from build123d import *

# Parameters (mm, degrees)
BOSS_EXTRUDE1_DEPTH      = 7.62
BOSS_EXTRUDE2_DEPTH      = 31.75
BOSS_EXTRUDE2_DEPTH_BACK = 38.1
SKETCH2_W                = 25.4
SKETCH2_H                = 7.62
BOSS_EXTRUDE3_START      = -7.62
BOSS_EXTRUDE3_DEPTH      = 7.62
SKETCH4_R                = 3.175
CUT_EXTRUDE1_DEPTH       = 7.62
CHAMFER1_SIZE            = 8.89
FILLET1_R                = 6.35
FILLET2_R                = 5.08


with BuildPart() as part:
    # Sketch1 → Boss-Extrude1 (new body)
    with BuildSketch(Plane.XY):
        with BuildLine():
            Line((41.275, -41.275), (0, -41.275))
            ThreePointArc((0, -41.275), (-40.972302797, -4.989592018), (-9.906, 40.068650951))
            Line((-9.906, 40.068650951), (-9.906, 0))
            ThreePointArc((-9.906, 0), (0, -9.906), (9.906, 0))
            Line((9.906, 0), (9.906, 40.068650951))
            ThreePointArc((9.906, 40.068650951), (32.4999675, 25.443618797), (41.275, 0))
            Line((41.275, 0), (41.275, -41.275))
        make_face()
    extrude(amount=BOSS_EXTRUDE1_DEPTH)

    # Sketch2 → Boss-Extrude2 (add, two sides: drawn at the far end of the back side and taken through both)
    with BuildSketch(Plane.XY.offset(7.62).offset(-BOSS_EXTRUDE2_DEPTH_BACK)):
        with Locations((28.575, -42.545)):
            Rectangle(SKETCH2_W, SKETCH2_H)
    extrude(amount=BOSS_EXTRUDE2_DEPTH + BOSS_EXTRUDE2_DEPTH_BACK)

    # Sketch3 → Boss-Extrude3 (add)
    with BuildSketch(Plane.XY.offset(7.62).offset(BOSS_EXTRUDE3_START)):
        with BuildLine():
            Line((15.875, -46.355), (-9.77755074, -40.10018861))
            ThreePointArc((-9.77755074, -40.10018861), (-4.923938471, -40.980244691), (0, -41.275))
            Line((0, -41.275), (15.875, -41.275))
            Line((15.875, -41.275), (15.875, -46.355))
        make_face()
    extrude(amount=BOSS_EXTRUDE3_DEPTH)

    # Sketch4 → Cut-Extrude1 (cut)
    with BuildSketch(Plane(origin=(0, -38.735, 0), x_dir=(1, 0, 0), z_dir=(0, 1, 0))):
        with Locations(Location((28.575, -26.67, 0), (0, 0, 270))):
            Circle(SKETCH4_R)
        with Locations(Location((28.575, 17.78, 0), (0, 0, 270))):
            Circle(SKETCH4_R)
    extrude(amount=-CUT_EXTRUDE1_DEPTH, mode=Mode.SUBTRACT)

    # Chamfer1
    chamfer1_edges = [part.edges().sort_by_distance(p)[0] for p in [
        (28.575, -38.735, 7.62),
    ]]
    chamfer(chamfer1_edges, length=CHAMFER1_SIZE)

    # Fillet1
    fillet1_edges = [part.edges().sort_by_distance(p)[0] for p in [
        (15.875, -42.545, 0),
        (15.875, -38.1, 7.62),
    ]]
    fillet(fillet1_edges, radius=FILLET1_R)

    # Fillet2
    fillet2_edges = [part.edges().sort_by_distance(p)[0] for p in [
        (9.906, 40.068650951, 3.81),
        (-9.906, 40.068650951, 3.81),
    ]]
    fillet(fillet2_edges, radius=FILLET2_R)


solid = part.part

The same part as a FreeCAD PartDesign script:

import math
import FreeCAD as App
import Part
import Sketcher
from FreeCAD import Vector
Q = App.Units.Quantity


def edges_at(feature, points):
    """Names of the edges that pass closest to the given points."""
    edges = feature.Shape.Edges
    near = lambda p: min(range(len(edges)), key=lambda i: edges[i].distToShape(Part.Vertex(*p))[0])
    return sorted({f"Edge{near(p) + 1}" for p in points})

doc = App.newDocument("Part")
params = doc.addObject("Spreadsheet::Sheet", "Params")
for row, (alias, value) in enumerate([
    ("sketch1_radius", "0.39 in"),
    ("sketch1_radius2", "1.625 in"),
    ("pad1_length", "0.3 in"),
    ("sketch2_width", "1 in"),
    ("sketch2_height", "0.3 in"),
    ("pad2_length", "1.25 in"),
    ("pad2_length2", "1.5 in"),
    ("sketch3_height", "0.2 in"),
    ("sketch3_radius", "1.625 in"),
    ("sketch3_width", "0.625 in"),
    ("pad3_length", "0.3 in"),
    ("sketch4_diameter", "0.25 in"),
    ("pocket1_length", "0.3 in"),
    ("chamfer_size", "0.35 in"),
    ("fillet_radius", "0.25 in"),
    ("fillet2_radius", "0.2 in"),
], start=1):
    params.set(f"A{row}", alias)
    params.set(f"B{row}", "=" + value)
    params.setAlias(f"B{row}", alias)

body = doc.addObject("PartDesign::Body", "Body")

# Sketch on XY plane
sketch1 = body.newObject("Sketcher::SketchObject", "Sketch")
sketch1.AttachmentSupport = (doc.getObject("XY_Plane"), [""])
sketch1.MapMode = "FlatFace"
sketch1.addGeometry([
    Part.LineSegment(Vector(0, -41.275, 0), Vector(41.275, -41.275, 0)),  # 0
    Part.LineSegment(Vector(41.275, -41.275, 0), Vector(41.275, 0, 0)),  # 1
    Part.ArcOfCircle(Part.Circle(Vector(0, 0, 0), Vector(0, 0, 1), 41.275), math.radians(0), math.radians(76.11346)),  # 2
    Part.LineSegment(Vector(9.906, 40.068651, 0), Vector(9.906, 0, 0)),  # 3
    Part.ArcOfCircle(Part.Circle(Vector(0, 0, 0), Vector(0, 0, 1), 9.906), math.radians(180), math.radians(360)),  # 4
    Part.LineSegment(Vector(-9.906, 0, 0), Vector(-9.906, 40.068651, 0)),  # 5
    Part.ArcOfCircle(Part.Circle(Vector(0, 0, 0), Vector(0, 0, 1), 41.275), math.radians(103.88654), math.radians(270)),  # 6
], False)
sketch1.addConstraint([
    Sketcher.Constraint("Coincident", 0, 2, 1, 1),
    Sketcher.Constraint("Tangent", 1, 2, 2, 1),
    Sketcher.Constraint("Coincident", 2, 2, 3, 1),
    Sketcher.Constraint("Tangent", 3, 2, 4, 2),
    Sketcher.Constraint("Tangent", 4, 1, 5, 1),
    Sketcher.Constraint("Coincident", 5, 2, 6, 1),
    Sketcher.Constraint("Tangent", 6, 2, 0, 1),
    Sketcher.Constraint("Horizontal", 0),
    Sketcher.Constraint("Vertical", 1),
    Sketcher.Constraint("Vertical", 3),
    Sketcher.Constraint("Vertical", 5),
    Sketcher.Constraint("Coincident", 2, 3, -1, 1),
    Sketcher.Constraint("Coincident", 4, 3, -1, 1),
    Sketcher.Constraint("Coincident", 6, 3, -1, 1),
    Sketcher.Constraint("Equal", 2, 6),
    Sketcher.Constraint("Radius", 4, Q("0.39 in")),
    Sketcher.Constraint("Radius", 2, Q("1.625 in")),
])
sketch1.setExpression("Constraints[15]", "Params.sketch1_radius")
sketch1.setExpression("Constraints[16]", "Params.sketch1_radius2")
pad1 = body.newObject("PartDesign::Pad", "Pad")
pad1.Profile = sketch1
pad1.setExpression("Length", "Params.pad1_length")

# Sketch on XY plane
sketch2 = body.newObject("Sketcher::SketchObject", "Sketch001")
sketch2.AttachmentSupport = (doc.getObject("XY_Plane"), [""])
sketch2.MapMode = "FlatFace"
sketch2.AttachmentOffset = App.Placement(Vector(0, 0, 0.3 * 25.4), App.Rotation())
sketch2.addGeometry([
    Part.LineSegment(Vector(15.875, -38.735, 0), Vector(15.875, -46.355, 0)),
    Part.LineSegment(Vector(15.875, -46.355, 0), Vector(41.275, -46.355, 0)),
    Part.LineSegment(Vector(41.275, -46.355, 0), Vector(41.275, -38.735, 0)),
    Part.LineSegment(Vector(41.275, -38.735, 0), Vector(15.875, -38.735, 0)),
], False)
sketch2.addConstraint([
    Sketcher.Constraint("Coincident", 0, 2, 1, 1),
    Sketcher.Constraint("Coincident", 1, 2, 2, 1),
    Sketcher.Constraint("Coincident", 2, 2, 3, 1),
    Sketcher.Constraint("Coincident", 3, 2, 0, 1),
    Sketcher.Constraint("Vertical", 0),
    Sketcher.Constraint("Horizontal", 1),
    Sketcher.Constraint("Vertical", 2),
    Sketcher.Constraint("Horizontal", 3),
    Sketcher.Constraint("DistanceX", 1, 1, 1, 2, Q("1 in")),
    Sketcher.Constraint("DistanceY", 0, 2, 0, 1, Q("0.3 in")),
    Sketcher.Constraint("DistanceX", -1, 1, 0, 2, Q("0.625 in")),
    Sketcher.Constraint("DistanceY", 0, 2, -1, 1, Q("1.825 in")),
])
sketch2.setExpression("Constraints[8]", "Params.sketch2_width")
sketch2.setExpression("Constraints[9]", "Params.sketch2_height")
pad2 = body.newObject("PartDesign::Pad", "Pad001")
pad2.Profile = sketch2
pad2.Type = "TwoLengths"
pad2.setExpression("Length", "Params.pad2_length")
pad2.setExpression("Length2", "Params.pad2_length2")

# Sketch on XY plane
sketch3 = body.newObject("Sketcher::SketchObject", "Sketch002")
sketch3.AttachmentSupport = (doc.getObject("XY_Plane"), [""])
sketch3.MapMode = "FlatFace"
sketch3.addGeometry([
    Part.LineSegment(Vector(-9.777551, -40.100189, 0), Vector(15.875, -46.355, 0)),
    Part.LineSegment(Vector(15.875, -46.355, 0), Vector(15.875, -41.275, 0)),
    Part.LineSegment(Vector(15.875, -41.275, 0), Vector(0, -41.275, 0)),
    Part.ArcOfCircle(Part.Circle(Vector(0, 0, 0), Vector(0, 0, 1), 41.275), math.radians(-103.702938), math.radians(-90)),
], False)
sketch3.addConstraint([
    Sketcher.Constraint("Coincident", 0, 2, 1, 1),
    Sketcher.Constraint("Coincident", 1, 2, 2, 1),
    Sketcher.Constraint("Tangent", 2, 2, 3, 2),
    Sketcher.Constraint("Tangent", 3, 1, 0, 1),
    Sketcher.Constraint("Vertical", 1),
    Sketcher.Constraint("Horizontal", 2),
    Sketcher.Constraint("Coincident", 3, 3, -1, 1),
    Sketcher.Constraint("DistanceY", 1, 1, 1, 2, Q("0.2 in")),
    Sketcher.Constraint("Radius", 3, Q("1.625 in")),
    Sketcher.Constraint("DistanceX", 2, 2, 2, 1, Q("0.625 in")),
])
sketch3.setExpression("Constraints[7]", "Params.sketch3_height")
sketch3.setExpression("Constraints[8]", "Params.sketch3_radius")
sketch3.setExpression("Constraints[9]", "Params.sketch3_width")
pad3 = body.newObject("PartDesign::Pad", "Pad002")
pad3.Profile = sketch3
pad3.setExpression("Length", "Params.pad3_length")

# Sketch on XZ plane
sketch4 = body.newObject("Sketcher::SketchObject", "Sketch003")
sketch4.AttachmentSupport = (doc.getObject("XZ_Plane"), [""])
sketch4.MapMode = "FlatFace"
sketch4.AttachmentOffset = App.Placement(Vector(0, 0, 1.525 * 25.4), App.Rotation())
sketch4.addGeometry([
    Part.Circle(Vector(28.575, 26.67, 0), Vector(0, 0, 1), 3.175),
    Part.Circle(Vector(28.575, -17.78, 0), Vector(0, 0, 1), 3.175),
], False)
sketch4.addConstraint([
    Sketcher.Constraint("Equal", 0, 1),
    Sketcher.Constraint("Vertical", 0, 3, 1, 3),
    Sketcher.Constraint("Diameter", 0, Q("0.25 in")),
    Sketcher.Constraint("DistanceY", 1, 3, -1, 1, Q("0.7 in")),
    Sketcher.Constraint("DistanceY", -1, 1, 0, 3, Q("1.05 in")),
    Sketcher.Constraint("DistanceX", -1, 1, 0, 3, Q("1.125 in")),
])
sketch4.setExpression("Constraints[2]", "Params.sketch4_diameter")
pocket1 = body.newObject("PartDesign::Pocket", "Pocket")
pocket1.Profile = sketch4
pocket1.setExpression("Length", "Params.pocket1_length")
pocket1.Reversed = True
doc.recompute()

chamfer = body.newObject("PartDesign::Chamfer", "Chamfer")
chamfer.Base = (pocket1, edges_at(pocket1, [(28.575, -38.735, 7.62)]))
chamfer.setExpression("Size", "Params.chamfer_size")
doc.recompute()

fillet = body.newObject("PartDesign::Fillet", "Fillet")
fillet.Base = (chamfer, edges_at(chamfer, [(15.875, -42.545, 0), (15.875, -38.1, 7.62)]))
fillet.setExpression("Radius", "Params.fillet_radius")
doc.recompute()

fillet2 = body.newObject("PartDesign::Fillet", "Fillet001")
fillet2.Base = (fillet, edges_at(fillet, [(9.906, 40.069, 3.81), (-9.906, 40.069, 3.81)]))
fillet2.setExpression("Radius", "Params.fillet2_radius")

doc.recompute()
